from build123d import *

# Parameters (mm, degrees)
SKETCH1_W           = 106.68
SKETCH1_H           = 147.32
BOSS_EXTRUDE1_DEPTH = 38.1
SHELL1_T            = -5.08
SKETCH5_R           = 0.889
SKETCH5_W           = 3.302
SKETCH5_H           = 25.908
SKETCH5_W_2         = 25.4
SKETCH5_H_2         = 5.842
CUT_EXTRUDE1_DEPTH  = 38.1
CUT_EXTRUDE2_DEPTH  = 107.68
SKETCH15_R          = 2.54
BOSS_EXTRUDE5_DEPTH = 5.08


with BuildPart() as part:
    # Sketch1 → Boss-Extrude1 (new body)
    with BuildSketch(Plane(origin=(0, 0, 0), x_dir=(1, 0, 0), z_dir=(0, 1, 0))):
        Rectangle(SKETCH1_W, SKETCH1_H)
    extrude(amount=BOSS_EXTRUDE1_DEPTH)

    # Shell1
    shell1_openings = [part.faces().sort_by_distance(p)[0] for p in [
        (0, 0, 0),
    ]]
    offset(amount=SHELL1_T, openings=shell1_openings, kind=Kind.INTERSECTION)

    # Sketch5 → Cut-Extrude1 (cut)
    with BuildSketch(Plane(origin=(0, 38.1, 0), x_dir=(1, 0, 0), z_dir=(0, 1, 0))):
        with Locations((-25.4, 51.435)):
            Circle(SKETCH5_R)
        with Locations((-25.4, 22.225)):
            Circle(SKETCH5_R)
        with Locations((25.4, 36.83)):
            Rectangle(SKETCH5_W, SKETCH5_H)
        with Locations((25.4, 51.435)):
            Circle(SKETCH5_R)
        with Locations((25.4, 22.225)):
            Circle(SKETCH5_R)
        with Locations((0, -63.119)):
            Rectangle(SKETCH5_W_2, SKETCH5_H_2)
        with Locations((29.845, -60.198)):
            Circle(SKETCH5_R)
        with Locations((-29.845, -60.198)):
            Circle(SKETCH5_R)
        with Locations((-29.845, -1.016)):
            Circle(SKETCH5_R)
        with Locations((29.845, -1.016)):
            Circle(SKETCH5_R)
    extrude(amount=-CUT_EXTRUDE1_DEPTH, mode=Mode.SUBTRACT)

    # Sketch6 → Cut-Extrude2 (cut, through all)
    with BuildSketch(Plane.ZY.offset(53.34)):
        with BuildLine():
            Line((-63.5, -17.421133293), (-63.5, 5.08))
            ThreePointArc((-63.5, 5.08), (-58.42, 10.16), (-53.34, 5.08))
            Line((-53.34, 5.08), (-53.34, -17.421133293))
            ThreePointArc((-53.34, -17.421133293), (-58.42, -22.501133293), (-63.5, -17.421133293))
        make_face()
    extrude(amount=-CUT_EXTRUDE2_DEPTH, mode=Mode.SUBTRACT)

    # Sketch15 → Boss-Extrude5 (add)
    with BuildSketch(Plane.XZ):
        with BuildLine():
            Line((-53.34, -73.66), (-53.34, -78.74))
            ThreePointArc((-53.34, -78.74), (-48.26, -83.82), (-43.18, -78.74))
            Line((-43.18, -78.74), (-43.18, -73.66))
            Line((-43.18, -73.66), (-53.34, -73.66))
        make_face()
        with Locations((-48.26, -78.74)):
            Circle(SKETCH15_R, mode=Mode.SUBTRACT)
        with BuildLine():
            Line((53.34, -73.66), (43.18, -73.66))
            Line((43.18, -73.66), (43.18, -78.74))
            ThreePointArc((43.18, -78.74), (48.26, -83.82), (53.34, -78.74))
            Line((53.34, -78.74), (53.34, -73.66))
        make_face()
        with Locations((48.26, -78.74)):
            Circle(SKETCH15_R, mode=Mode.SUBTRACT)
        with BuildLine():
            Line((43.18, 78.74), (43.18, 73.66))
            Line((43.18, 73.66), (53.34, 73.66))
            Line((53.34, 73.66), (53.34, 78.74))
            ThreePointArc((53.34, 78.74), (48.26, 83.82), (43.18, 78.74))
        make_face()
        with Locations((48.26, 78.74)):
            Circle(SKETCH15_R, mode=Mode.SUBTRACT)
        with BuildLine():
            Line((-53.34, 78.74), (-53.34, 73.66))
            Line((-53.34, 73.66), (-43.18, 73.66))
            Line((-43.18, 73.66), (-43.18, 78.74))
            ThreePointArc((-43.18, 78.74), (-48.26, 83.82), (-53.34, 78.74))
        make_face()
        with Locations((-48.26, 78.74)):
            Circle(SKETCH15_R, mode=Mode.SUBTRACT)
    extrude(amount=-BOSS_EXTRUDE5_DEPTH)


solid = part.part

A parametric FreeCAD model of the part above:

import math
import FreeCAD as App
import Part
import Sketcher
Q = App.Units.Quantity


def faces_at(feature, points):
    """Names of the faces that lie closest to the given points."""
    faces = feature.Shape.Faces
    near = lambda p: min(range(len(faces)), key=lambda i: faces[i].distToShape(Part.Vertex(*p))[0])
    return sorted({f"Face{near(p) + 1}" for p in points})


def add_polygon(sketch, points):
    """Adds a closed chain of lines whose ends are joined by coincident constraints."""
    first, n = sketch.GeometryCount, len(points)
    for a, b in zip(points, points[1:] + points[:1]):
        sketch.addGeometry(Part.LineSegment(App.Vector(*a, 0), App.Vector(*b, 0)), False)
    for i in range(n):
        sketch.addConstraint(Sketcher.Constraint("Coincident", first + i, 2, first + (i + 1) % n, 1))

doc = App.newDocument("Part")
params = doc.addObject("Spreadsheet::Sheet", "Params")
for row, (alias, value) in enumerate([
    ("sketch1_width", "4.2 in"),
    ("sketch1_height", "5.8 in"),
    ("pad1_length", "1.5 in"),
    ("thickness_wall", "0.2 in"),
    ("sketch2_diameter", "0.07 in"),
    ("sketch2_width", "1 in"),
    ("sketch2_width2", "0.13 in"),
    ("sketch2_height", "1.02 in"),
    ("sketch2_height2", "0.23 in"),
    ("pocket1_length", "1.5 in"),
    ("sketch3_radius", "0.2 in"),
    ("sketch4_diameter", "0.2 in"),
    ("sketch4_radius", "0.2 in"),
    ("sketch4_height", "0.2 in"),
    ("pad2_length", "0.2 in"),
], start=1):
    params.set(f"A{row}", alias)
    params.set(f"B{row}", "=" + value)
    params.setAlias(f"B{row}", alias)

body = doc.addObject("PartDesign::Body", "Body")

# Sketch on XZ plane
sketch1 = body.newObject("Sketcher::SketchObject", "Sketch")
sketch1.AttachmentSupport = (doc.getObject("XZ_Plane"), [""])
sketch1.MapMode = "FlatFace"
add_polygon(sketch1, [(-53, -74), (-53, 74), (53, 74), (53, -74)])  # lines 0-3
sketch1.addConstraint(Sketcher.Constraint("Vertical", 0))
sketch1.addConstraint(Sketcher.Constraint("Horizontal", 1))
sketch1.addConstraint(Sketcher.Constraint("Vertical", 2))
sketch1.addConstraint(Sketcher.Constraint("Horizontal", 3))
sketch1.addConstraint(Sketcher.Constraint("Symmetric", 0, 2, 2, 2, -1, 1))
sketch1.addConstraint(Sketcher.Constraint("DistanceX", 1, 1, 1, 2, Q("4.2 in")))
sketch1.addConstraint(Sketcher.Constraint("DistanceY", 0, 1, 0, 2, Q("5.8 in")))
sketch1.setExpression("Constraints[9]", "Params.sketch1_width")
sketch1.setExpression("Constraints[10]", "Params.sketch1_height")
pad1 = body.newObject("PartDesign::Pad", "Pad")
pad1.Profile = sketch1
pad1.setExpression("Length", "Params.pad1_length")
pad1.Reversed = True
doc.recompute()

thickness = body.newObject("PartDesign::Thickness", "Thickness")
thickness.Base = (pad1, faces_at(pad1, [(0, 0, 0)]))
thickness.setExpression("Value", "Params.thickness_wall")
thickness.Reversed = True
thickness.Join = "Intersection"

# Sketch on XZ plane
sketch2 = body.newObject("Sketcher::SketchObject", "Sketch001")
sketch2.AttachmentSupport = (doc.getObject("XZ_Plane"), [""])
sketch2.MapMode = "FlatFace"
sketch2.AttachmentOffset = App.Placement(App.Vector(0, 0, -1.5 * 25.4), App.Rotation())
sketch2.addGeometry(Part.Circle(App.Vector(-25.4, -51.4, 0), App.Vector(0, 0, 1), 0.9), False)  # 0
sketch2.addGeometry(Part.Circle(App.Vector(-25.4, -22.2, 0), App.Vector(0, 0, 1), 0.9), False)  # 1
add_polygon(sketch2, [(23.7, -49.8), (23.7, -23.9), (27.1, -23.9), (27.1, -49.8)])  # lines 2-5
sketch2.addGeometry(Part.Circle(App.Vector(25.4, -51.4, 0), App.Vector(0, 0, 1), 0.9), False)  # 6
sketch2.addGeometry(Part.Circle(App.Vector(25.4, -22.2, 0), App.Vector(0, 0, 1), 0.9), False)  # 7
add_polygon(sketch2, [(-12.7, 60.2), (-12.7, 66), (12.7, 66), (12.7, 60.2)])  # lines 8-11
sketch2.addGeometry(Part.Circle(App.Vector(29.8, 60.2, 0), App.Vector(0, 0, 1), 0.9), False)  # 12
sketch2.addGeometry(Part.Circle(App.Vector(-29.8, 60.2, 0), App.Vector(0, 0, 1), 0.9), False)  # 13
sketch2.addGeometry(Part.Circle(App.Vector(-29.8, 1, 0), App.Vector(0, 0, 1), 0.9), False)  # 14
sketch2.addGeometry(Part.Circle(App.Vector(29.8, 1, 0), App.Vector(0, 0, 1), 0.9), False)  # 15
sketch2.addConstraint(Sketcher.Constraint("Vertical", 2))
sketch2.addConstraint(Sketcher.Constraint("Horizontal", 3))
sketch2.addConstraint(Sketcher.Constraint("Vertical", 4))
sketch2.addConstraint(Sketcher.Constraint("Horizontal", 5))
sketch2.addConstraint(Sketcher.Constraint("Vertical", 8))
sketch2.addConstraint(Sketcher.Constraint("Horizontal", 9))
sketch2.addConstraint(Sketcher.Constraint("Vertical", 10))
sketch2.addConstraint(Sketcher.Constraint("Horizontal", 11))
sketch2.addConstraint(Sketcher.Constraint("Equal", 0, 1))
sketch2.addConstraint(Sketcher.Constraint("Equal", 1, 6))
sketch2.addConstraint(Sketcher.Constraint("Equal", 6, 7))
sketch2.addConstraint(Sketcher.Constraint("Equal", 7, 12))
sketch2.addConstraint(Sketcher.Constraint("Equal", 12, 13))
sketch2.addConstraint(Sketcher.Constraint("Equal", 13, 14))
sketch2.addConstraint(Sketcher.Constraint("Equal", 14, 15))
sketch2.addConstraint(Sketcher.Constraint("Symmetric", 0, 3, 6, 3, -2))
sketch2.addConstraint(Sketcher.Constraint("Symmetric", 1, 3, 7, 3, -2))
sketch2.addConstraint(Sketcher.Constraint("Symmetric", 12, 3, 13, 3, -2))
sketch2.addConstraint(Sketcher.Constraint("Symmetric", 14, 3, 15, 3, -2))
sketch2.addConstraint(Sketcher.Constraint("Horizontal", 13, 3, 10, 2))
sketch2.addConstraint(Sketcher.Constraint("Vertical", 0, 3, 1, 3))
sketch2.addConstraint(Sketcher.Constraint("Vertical", 13, 3, 14, 3))
sketch2.addConstraint(Sketcher.Constraint("Diameter", 0, Q("0.07 in")))
sketch2.addConstraint(Sketcher.Constraint("DistanceX", 9, 1, 9, 2, Q("1 in")))
sketch2.addConstraint(Sketcher.Constraint("DistanceX", 0, 3, -1, 1, Q("1 in")))
sketch2.addConstraint(Sketcher.Constraint("DistanceY", 4, 2, 15, 3, Q("2 in")))
sketch2.addConstraint(Sketcher.Constraint("DistanceX", 3, 1, 3, 2, Q("0.13 in")))
sketch2.addConstraint(Sketcher.Constraint("DistanceY", 2, 1, 2, 2, Q("1.02 in")))
sketch2.addConstraint(Sketcher.Constraint("DistanceY", 8, 1, 8, 2, Q("0.23 in")))
sketch2.addConstraint(Sketcher.Constraint("DistanceX", 8, 2, -1, 1, Q("0.5 in")))
sketch2.addConstraint(Sketcher.Constraint("DistanceY", -1, 1, 8, 2, Q("2.6 in")))
sketch2.addConstraint(Sketcher.Constraint("DistanceY", -1, 1, 14, 3, Q("0.04 in")))
sketch2.addConstraint(Sketcher.Constraint("DistanceY", 0, 3, 1, 3, Q("1.15 in")))
sketch2.addConstraint(Sketcher.Constraint("DistanceX", 13, 3, 12, 3, Q("2.35 in")))
sketch2.addConstraint(Sketcher.Constraint("DistanceX", 2, 2, 15, 3, Q("0.24 in")))
sketch2.addConstraint(Sketcher.Constraint("DistanceY", 0, 3, -1, 1, Q("2.025 in")))
sketch2.setExpression("Constraints[30]", "Params.sketch2_diameter")
sketch2.setExpression("Constraints[31]", "Params.sketch2_width")
sketch2.setExpression("Constraints[34]", "Params.sketch2_width2")
sketch2.setExpression("Constraints[35]", "Params.sketch2_height")
sketch2.setExpression("Constraints[36]", "Params.sketch2_height2")
pocket1 = body.newObject("PartDesign::Pocket", "Pocket")
pocket1.Profile = sketch2
pocket1.setExpression("Length", "Params.pocket1_length")
pocket1.Reversed = True

# Sketch on YZ plane
sketch3 = body.newObject("Sketcher::SketchObject", "Sketch002")
sketch3.AttachmentSupport = (doc.getObject("YZ_Plane"), [""])
sketch3.MapMode = "FlatFace"
sketch3.AttachmentOffset = App.Placement(App.Vector(0, 0, -2.1 * 25.4), App.Rotation())
sketch3.addGeometry(Part.LineSegment(App.Vector(5, -64, 0), App.Vector(-17, -64, 0)), False)
sketch3.addGeometry(Part.ArcOfCircle(Part.Circle(App.Vector(-17, -58, 0), App.Vector(0, 0, 1), 5), math.radians(90), math.radians(270)), False)
sketch3.addGeometry(Part.LineSegment(App.Vector(-17, -53, 0), App.Vector(5, -53, 0)), False)
sketch3.addGeometry(Part.ArcOfCircle(Part.Circle(App.Vector(5, -58, 0), App.Vector(0, 0, 1), 5), math.radians(-90), math.radians(90)), False)
sketch3.addConstraint(Sketcher.Constraint("Tangent", 0, 2, 1, 2))
sketch3.addConstraint(Sketcher.Constraint("Tangent", 1, 1, 2, 1))
sketch3.addConstraint(Sketcher.Constraint("Tangent", 2, 2, 3, 2))
sketch3.addConstraint(Sketcher.Constraint("Tangent", 3, 1, 0, 1))
sketch3.addConstraint(Sketcher.Constraint("Horizontal", 0))
sketch3.addConstraint(Sketcher.Constraint("Horizontal", 2))
sketch3.addConstraint(Sketcher.Constraint("Radius", 1, Q("0.2 in")))
sketch3.addConstraint(Sketcher.Constraint("DistanceY", 1, 3, -1, 1, Q("2.3 in")))
sketch3.addConstraint(Sketcher.Constraint("DistanceX", -1, 1, 3, 3, Q("0.2 in")))
sketch3.addConstraint(Sketcher.Constraint("DistanceX", 0, 2, 0, 1, 22.501133))
sketch3.setExpression("Constraints[6]", "Params.sketch3_radius")
pocket2 = body.newObject("PartDesign::Pocket", "Pocket001")
pocket2.Profile = sketch3
pocket2.Type = "ThroughAll"
pocket2.Reversed = True

# Sketch on XZ plane
sketch4 = body.newObject("Sketcher::SketchObject", "Sketch003")
sketch4.AttachmentSupport = (doc.getObject("XZ_Plane"), [""])
sketch4.MapMode = "FlatFace"
sketch4.addGeometry(Part.LineSegment(App.Vector(-53.3, -73.7, 0), App.Vector(-53.3, -78.7, 0)), False)
sketch4.addGeometry(Part.ArcOfCircle(Part.Circle(App.Vector(-48.3, -78.7, 0), App.Vector(0, 0, 1), 5.1), math.radians(180), math.radians(360)), False)
sketch4.addGeometry(Part.LineSegment(App.Vector(-43.2, -78.7, 0), App.Vector(-43.2, -73.7, 0)), False)
sketch4.addGeometry(Part.LineSegment(App.Vector(-43.2, -73.7, 0), App.Vector(-53.3, -73.7, 0)), False)
sketch4.addGeometry(Part.Circle(App.Vector(-48.3, -78.7, 0), App.Vector(0, 0, 1), 2.5), False)
sketch4.addGeometry(Part.LineSegment(App.Vector(53.3, -73.7, 0), App.Vector(43.2, -73.7, 0)), False)
sketch4.addGeometry(Part.LineSegment(App.Vector(43.2, -73.7, 0), App.Vector(43.2, -78.7, 0)), False)
sketch4.addGeometry(Part.ArcOfCircle(Part.Circle(App.Vector(48.3, -78.7, 0), App.Vector(0, 0, 1), 5.1), math.radians(180), math.radians(360)), False)
sketch4.addGeometry(Part.LineSegment(App.Vector(53.3, -78.7, 0), App.Vector(53.3, -73.7, 0)), False)
sketch4.addGeometry(Part.Circle(App.Vector(48.3, -78.7, 0), App.Vector(0, 0, 1), 2.5), False)
sketch4.addGeometry(Part.LineSegment(App.Vector(43.2, 78.7, 0), App.Vector(43.2, 73.7, 0)), False)
sketch4.addGeometry(Part.LineSegment(App.Vector(43.2, 73.7, 0), App.Vector(53.3, 73.7, 0)), False)
sketch4.addGeometry(Part.LineSegment(App.Vector(53.3, 73.7, 0), App.Vector(53.3, 78.7, 0)), False)
sketch4.addGeometry(Part.ArcOfCircle(Part.Circle(App.Vector(48.3, 78.7, 0), App.Vector(0, 0, 1), 5.1), math.radians(0), math.radians(180)), False)
sketch4.addGeometry(Part.Circle(App.Vector(48.3, 78.7, 0), App.Vector(0, 0, 1), 2.5), False)
sketch4.addGeometry(Part.LineSegment(App.Vector(-53.3, 78.7, 0), App.Vector(-53.3, 73.7, 0)), False)
sketch4.addGeometry(Part.LineSegment(App.Vector(-53.3, 73.7, 0), App.Vector(-43.2, 73.7, 0)), False)
sketch4.addGeometry(Part.LineSegment(App.Vector(-43.2, 73.7, 0), App.Vector(-43.2, 78.7, 0)), False)
sketch4.addGeometry(Part.ArcOfCircle(Part.Circle(App.Vector(-48.3, 78.7, 0), App.Vector(0, 0, 1), 5.1), math.radians(0), math.radians(180)), False)
sketch4.addGeometry(Part.Circle(App.Vector(-48.3, 78.7, 0), App.Vector(0, 0, 1), 2.5), False)
sketch4.addConstraint(Sketcher.Constraint("Tangent", 0, 2, 1, 1))
sketch4.addConstraint(Sketcher.Constraint("Tangent", 1, 2, 2, 1))
sketch4.addConstraint(Sketcher.Constraint("Coincident", 2, 2, 3, 1))
sketch4.addConstraint(Sketcher.Constraint("Coincident", 3, 2, 0, 1))
sketch4.addConstraint(Sketcher.Constraint("Coincident", 5, 2, 6, 1))
sketch4.addConstraint(Sketcher.Constraint("Tangent", 6, 2, 7, 1))
sketch4.addConstraint(Sketcher.Constraint("Tangent", 7, 2, 8, 1))
sketch4.addConstraint(Sketcher.Constraint("Coincident", 8, 2, 5, 1))
sketch4.addConstraint(Sketcher.Constraint("Coincident", 10, 2, 11, 1))
sketch4.addConstraint(Sketcher.Constraint("Coincident", 11, 2, 12, 1))
sketch4.addConstraint(Sketcher.Constraint("Tangent", 12, 2, 13, 1))
sketch4.addConstraint(Sketcher.Constraint("Tangent", 13, 2, 10, 1))
sketch4.addConstraint(Sketcher.Constraint("Coincident", 15, 2, 16, 1))
sketch4.addConstraint(Sketcher.Constraint("Coincident", 16, 2, 17, 1))
sketch4.addConstraint(Sketcher.Constraint("Tangent", 17, 2, 18, 1))
sketch4.addConstraint(Sketcher.Constraint("Tangent", 18, 2, 15, 1))
sketch4.addConstraint(Sketcher.Constraint("Vertical", 0))
sketch4.addConstraint(Sketcher.Constraint("Vertical", 2))
sketch4.addConstraint(Sketcher.Constraint("Horizontal", 3))
sketch4.addConstraint(Sketcher.Constraint("Horizontal", 5))
sketch4.addConstraint(Sketcher.Constraint("Vertical", 6))
sketch4.addConstraint(Sketcher.Constraint("Vertical", 8))
sketch4.addConstraint(Sketcher.Constraint("Vertical", 10))
sketch4.addConstraint(Sketcher.Constraint("Horizontal", 11))
sketch4.addConstraint(Sketcher.Constraint("Vertical", 12))
sketch4.addConstraint(Sketcher.Constraint("Vertical", 15))
sketch4.addConstraint(Sketcher.Constraint("Horizontal", 16))
sketch4.addConstraint(Sketcher.Constraint("Vertical", 17))
sketch4.addConstraint(Sketcher.Constraint("Coincident", 4, 3, 1, 3))
sketch4.addConstraint(Sketcher.Constraint("Coincident", 9, 3, 7, 3))
sketch4.addConstraint(Sketcher.Constraint("Coincident", 14, 3, 13, 3))
sketch4.addConstraint(Sketcher.Constraint("Coincident", 19, 3, 18, 3))
sketch4.addConstraint(Sketcher.Constraint("Equal", 1, 7))
sketch4.addConstraint(Sketcher.Constraint("Equal", 4, 9))
sketch4.addConstraint(Sketcher.Constraint("Equal", 7, 13))
sketch4.addConstraint(Sketcher.Constraint("Equal", 9, 14))
sketch4.addConstraint(Sketcher.Constraint("Equal", 13, 18))
sketch4.addConstraint(Sketcher.Constraint("Equal", 14, 19))
sketch4.addConstraint(Sketcher.Constraint("Symmetric", 1, 3, 13, 3, -1, 1))
sketch4.addConstraint(Sketcher.Constraint("Symmetric", 7, 3, 18, 3, -1, 1))
sketch4.addConstraint(Sketcher.Constraint("Symmetric", 1, 3, 7, 3, -2))
sketch4.addConstraint(Sketcher.Constraint("Horizontal", 3, 2, 5, 2))
sketch4.addConstraint(Sketcher.Constraint("Horizontal", 11, 2, 15, 2))
sketch4.addConstraint(Sketcher.Constraint("Equal", 8, 10))
sketch4.addConstraint(Sketcher.Constraint("Diameter", 4, Q("0.2 in")))
sketch4.addConstraint(Sketcher.Constraint("Radius", 1, Q("0.2 in")))
sketch4.addConstraint(Sketcher.Constraint("DistanceY", 0, 2, 0, 1, Q("0.2 in")))
sketch4.addConstraint(Sketcher.Constraint("DistanceX", 0, 2, 7, 3, Q("4 in")))
sketch4.addConstraint(Sketcher.Constraint("DistanceY", 1, 3, -1, 1, Q("3.1 in")))
sketch4.setExpression("Constraints[44]", "Params.sketch4_diameter")
sketch4.setExpression("Constraints[45]", "Params.sketch4_radius")
sketch4.setExpression("Constraints[46]", "Params.sketch4_height")
pad2 = body.newObject("PartDesign::Pad", "Pad001")
pad2.Profile = sketch4
pad2.setExpression("Length", "Params.pad2_length")
pad2.Reversed = True

doc.recompute()
